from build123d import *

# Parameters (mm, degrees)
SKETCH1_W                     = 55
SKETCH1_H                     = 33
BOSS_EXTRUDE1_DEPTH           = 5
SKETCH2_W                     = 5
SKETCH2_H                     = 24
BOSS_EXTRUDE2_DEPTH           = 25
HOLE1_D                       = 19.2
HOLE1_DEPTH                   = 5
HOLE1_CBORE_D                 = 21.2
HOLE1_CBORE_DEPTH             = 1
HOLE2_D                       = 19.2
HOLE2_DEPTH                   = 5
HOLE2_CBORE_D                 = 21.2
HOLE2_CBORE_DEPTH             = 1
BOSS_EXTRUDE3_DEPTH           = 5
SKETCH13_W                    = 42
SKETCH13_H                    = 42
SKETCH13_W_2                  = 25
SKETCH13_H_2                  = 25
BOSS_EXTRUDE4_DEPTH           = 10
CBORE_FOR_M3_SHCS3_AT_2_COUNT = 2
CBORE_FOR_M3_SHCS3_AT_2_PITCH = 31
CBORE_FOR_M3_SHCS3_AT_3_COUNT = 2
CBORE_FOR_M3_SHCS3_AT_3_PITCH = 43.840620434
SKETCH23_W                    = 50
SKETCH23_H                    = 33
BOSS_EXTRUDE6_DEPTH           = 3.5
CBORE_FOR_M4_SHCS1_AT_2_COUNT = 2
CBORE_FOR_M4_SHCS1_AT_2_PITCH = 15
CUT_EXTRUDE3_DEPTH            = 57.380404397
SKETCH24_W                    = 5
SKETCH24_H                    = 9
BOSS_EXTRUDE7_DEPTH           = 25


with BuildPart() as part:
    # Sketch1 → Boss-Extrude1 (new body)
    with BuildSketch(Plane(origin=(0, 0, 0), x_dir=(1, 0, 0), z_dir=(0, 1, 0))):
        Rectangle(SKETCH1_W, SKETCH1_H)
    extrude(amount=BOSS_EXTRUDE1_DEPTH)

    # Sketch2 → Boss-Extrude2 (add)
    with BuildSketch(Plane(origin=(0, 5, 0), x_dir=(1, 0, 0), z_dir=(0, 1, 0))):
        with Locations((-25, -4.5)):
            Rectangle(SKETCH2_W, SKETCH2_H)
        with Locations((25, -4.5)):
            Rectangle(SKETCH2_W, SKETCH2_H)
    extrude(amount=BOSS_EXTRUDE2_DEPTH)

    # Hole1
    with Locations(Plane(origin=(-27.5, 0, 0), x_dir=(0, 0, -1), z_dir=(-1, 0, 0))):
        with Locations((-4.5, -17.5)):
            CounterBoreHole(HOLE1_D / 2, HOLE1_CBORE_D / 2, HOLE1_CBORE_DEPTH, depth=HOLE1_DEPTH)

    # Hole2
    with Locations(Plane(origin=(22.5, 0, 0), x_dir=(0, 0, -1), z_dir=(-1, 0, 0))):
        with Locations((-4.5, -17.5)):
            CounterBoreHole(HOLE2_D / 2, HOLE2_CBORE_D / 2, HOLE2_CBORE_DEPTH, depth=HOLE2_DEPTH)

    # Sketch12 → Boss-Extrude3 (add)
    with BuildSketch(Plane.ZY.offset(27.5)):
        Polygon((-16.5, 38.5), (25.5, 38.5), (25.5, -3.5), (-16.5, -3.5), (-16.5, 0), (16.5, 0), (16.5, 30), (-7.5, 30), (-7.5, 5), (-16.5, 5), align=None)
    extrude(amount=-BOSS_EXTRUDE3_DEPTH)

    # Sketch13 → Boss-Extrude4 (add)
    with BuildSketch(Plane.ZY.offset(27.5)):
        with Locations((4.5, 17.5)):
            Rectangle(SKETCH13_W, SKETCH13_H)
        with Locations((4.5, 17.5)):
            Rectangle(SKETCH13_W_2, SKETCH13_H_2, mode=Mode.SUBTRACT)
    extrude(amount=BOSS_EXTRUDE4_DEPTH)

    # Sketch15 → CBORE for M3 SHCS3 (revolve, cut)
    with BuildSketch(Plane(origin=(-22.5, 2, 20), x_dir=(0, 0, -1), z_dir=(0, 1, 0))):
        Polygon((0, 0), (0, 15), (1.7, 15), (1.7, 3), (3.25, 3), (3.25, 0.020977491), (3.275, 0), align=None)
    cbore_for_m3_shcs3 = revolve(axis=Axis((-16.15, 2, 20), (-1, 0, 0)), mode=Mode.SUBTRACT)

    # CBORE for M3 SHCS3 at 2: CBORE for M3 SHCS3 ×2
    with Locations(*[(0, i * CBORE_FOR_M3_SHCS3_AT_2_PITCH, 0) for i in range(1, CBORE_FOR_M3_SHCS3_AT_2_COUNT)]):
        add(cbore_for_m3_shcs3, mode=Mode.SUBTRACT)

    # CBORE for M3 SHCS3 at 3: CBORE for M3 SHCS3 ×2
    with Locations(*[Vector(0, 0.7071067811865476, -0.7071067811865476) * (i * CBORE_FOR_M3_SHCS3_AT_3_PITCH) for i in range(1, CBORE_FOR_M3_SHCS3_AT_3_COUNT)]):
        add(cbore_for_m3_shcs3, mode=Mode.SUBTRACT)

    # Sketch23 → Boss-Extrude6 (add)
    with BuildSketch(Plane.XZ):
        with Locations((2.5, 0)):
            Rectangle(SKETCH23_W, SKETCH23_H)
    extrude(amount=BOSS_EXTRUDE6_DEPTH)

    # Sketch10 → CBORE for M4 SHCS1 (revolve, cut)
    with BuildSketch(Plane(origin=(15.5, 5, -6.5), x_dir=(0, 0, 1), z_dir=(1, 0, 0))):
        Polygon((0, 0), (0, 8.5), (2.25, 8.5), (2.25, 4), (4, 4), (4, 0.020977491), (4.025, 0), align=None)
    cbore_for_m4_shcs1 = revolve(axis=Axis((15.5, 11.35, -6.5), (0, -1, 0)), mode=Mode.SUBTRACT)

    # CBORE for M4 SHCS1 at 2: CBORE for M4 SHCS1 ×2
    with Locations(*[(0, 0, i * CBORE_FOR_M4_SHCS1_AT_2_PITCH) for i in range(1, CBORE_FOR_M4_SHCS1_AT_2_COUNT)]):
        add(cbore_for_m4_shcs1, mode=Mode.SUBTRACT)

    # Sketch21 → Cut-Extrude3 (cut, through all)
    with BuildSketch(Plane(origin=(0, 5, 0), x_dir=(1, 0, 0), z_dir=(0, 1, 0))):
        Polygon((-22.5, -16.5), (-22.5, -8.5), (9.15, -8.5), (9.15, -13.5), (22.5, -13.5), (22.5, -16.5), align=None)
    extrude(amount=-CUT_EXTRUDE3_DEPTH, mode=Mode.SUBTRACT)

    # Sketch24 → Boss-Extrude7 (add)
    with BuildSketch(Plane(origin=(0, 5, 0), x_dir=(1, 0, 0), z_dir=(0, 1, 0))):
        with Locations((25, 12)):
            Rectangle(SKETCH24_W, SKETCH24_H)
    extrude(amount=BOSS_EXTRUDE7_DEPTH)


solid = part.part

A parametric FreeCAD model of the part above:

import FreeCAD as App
import Part
import Sketcher

V = App.Vector
Q = App.Units.Quantity

doc = App.newDocument("Part")
params = doc.addObject("Spreadsheet::Sheet", "Params")
for row, (alias, value) in enumerate([
    ("sketch1_width", "55 mm"),
    ("sketch1_height", "33 mm"),
    ("pad1_length", "5 mm"),
    ("sketch2_width", "5 mm"),
    ("sketch2_height", "24 mm"),
    ("pad2_length", "25 mm"),
    ("sketch3_diameter", "19.2 mm"),
    ("hole_diameter", "19.2 mm"),
    ("hole_depth", "5 mm"),
    ("hole_cbore_diameter", "21.2 mm"),
    ("hole_cbore_depth", "1 mm"),
    ("sketch4_diameter", "19.2 mm"),
    ("hole2_diameter", "19.2 mm"),
    ("hole2_depth", "5 mm"),
    ("hole2_cbore_diameter", "21.2 mm"),
    ("hole2_cbore_depth", "1 mm"),
    ("sketch5_width", "25 mm"),
    ("sketch5_width2", "30 mm"),
    ("sketch5_width3", "42 mm"),
    ("sketch5_height", "9 mm"),
    ("sketch5_height2", "24 mm"),
    ("pad3_length", "5 mm"),
    ("sketch6_width", "42 mm"),
    ("sketch6_width2", "25 mm"),
    ("pad4_length", "10 mm"),
    ("sketch7_width", "15 mm"),
    ("sketch7_width2", "12 mm"),
    ("sketch7_height", "1.7 mm"),
    ("sketch7_height2", "1.55 mm"),
    ("groove_angle", "360 deg"),
    ("linearpattern_pitch", "31 mm"),
    ("linearpattern2_pitch", "43.84062 mm"),
    ("sketch8_width", "50 mm"),
    ("sketch8_height", "33 mm"),
    ("pad5_length", "3.5 mm"),
    ("sketch9_width", "8.5 mm"),
    ("sketch9_width2", "4.5 mm"),
    ("sketch9_height", "1.75 mm"),
    ("groove2_angle", "360 deg"),
    ("linearpattern3_pitch", "15 mm"),
    ("sketch10_width", "45 mm"),
    ("sketch10_height", "8 mm"),
    ("sketch10_height2", "3 mm"),
    ("sketch10_width2", "13.35 mm"),
    ("sketch11_width", "5 mm"),
    ("sketch11_height", "9 mm"),
    ("pad6_length", "25 mm"),
], start=1):
    params.set(f"A{row}", alias)
    params.set(f"B{row}", "=" + value)
    params.setAlias(f"B{row}", alias)

body = doc.addObject("PartDesign::Body", "Body")

# Sketch on XZ plane
sketch1 = body.newObject("Sketcher::SketchObject", "Sketch")
sketch1.AttachmentSupport = (doc.getObject("XZ_Plane"), [""])
sketch1.MapMode = "FlatFace"
sketch1.addGeometry(Part.LineSegment(V(-27.5, -16.5, 0), V(-27.5, 16.5, 0)), False)
sketch1.addGeometry(Part.LineSegment(V(-27.5, 16.5, 0), V(27.5, 16.5, 0)), False)
sketch1.addGeometry(Part.LineSegment(V(27.5, 16.5, 0), V(27.5, -16.5, 0)), False)
sketch1.addGeometry(Part.LineSegment(V(27.5, -16.5, 0), V(-27.5, -16.5, 0)), False)
sketch1.addConstraint(Sketcher.Constraint("Coincident", 0, 2, 1, 1))
sketch1.addConstraint(Sketcher.Constraint("Coincident", 1, 2, 2, 1))
sketch1.addConstraint(Sketcher.Constraint("Coincident", 2, 2, 3, 1))
sketch1.addConstraint(Sketcher.Constraint("Coincident", 3, 2, 0, 1))
sketch1.addConstraint(Sketcher.Constraint("Vertical", 0))
sketch1.addConstraint(Sketcher.Constraint("Horizontal", 1))
sketch1.addConstraint(Sketcher.Constraint("Vertical", 2))
sketch1.addConstraint(Sketcher.Constraint("Horizontal", 3))
sketch1.addConstraint(Sketcher.Constraint("Symmetric", 0, 2, 2, 2, -1, 1))
sketch1.addConstraint(Sketcher.Constraint("DistanceX", 1, 1, 1, 2, Q("55 mm")))
sketch1.addConstraint(Sketcher.Constraint("DistanceY", 0, 1, 0, 2, Q("33 mm")))
sketch1.setExpression("Constraints[9]", "Params.sketch1_width")
sketch1.setExpression("Constraints[10]", "Params.sketch1_height")
pad1 = body.newObject("PartDesign::Pad", "Pad")
pad1.Profile = sketch1
pad1.setExpression("Length", "Params.pad1_length")
pad1.Reversed = True

# Sketch on XZ plane
sketch2 = body.newObject("Sketcher::SketchObject", "Sketch001")
sketch2.AttachmentSupport = (doc.getObject("XZ_Plane"), [""])
sketch2.MapMode = "FlatFace"
sketch2.AttachmentOffset = App.Placement(V(0, 0, -5), App.Rotation())
sketch2.addGeometry(Part.LineSegment(V(-27.5, -7.5, 0), V(-27.5, 16.5, 0)), False)
sketch2.addGeometry(Part.LineSegment(V(-27.5, 16.5, 0), V(-22.5, 16.5, 0)), False)
sketch2.addGeometry(Part.LineSegment(V(-22.5, 16.5, 0), V(-22.5, -7.5, 0)), False)
sketch2.addGeometry(Part.LineSegment(V(-22.5, -7.5, 0), V(-27.5, -7.5, 0)), False)
sketch2.addGeometry(Part.LineSegment(V(22.5, -7.5, 0), V(22.5, 16.5, 0)), False)
sketch2.addGeometry(Part.LineSegment(V(22.5, 16.5, 0), V(27.5, 16.5, 0)), False)
sketch2.addGeometry(Part.LineSegment(V(27.5, 16.5, 0), V(27.5, -7.5, 0)), False)
sketch2.addGeometry(Part.LineSegment(V(27.5, -7.5, 0), V(22.5, -7.5, 0)), False)
sketch2.addConstraint(Sketcher.Constraint("Coincident", 0, 2, 1, 1))
sketch2.addConstraint(Sketcher.Constraint("Coincident", 1, 2, 2, 1))
sketch2.addConstraint(Sketcher.Constraint("Coincident", 2, 2, 3, 1))
sketch2.addConstraint(Sketcher.Constraint("Coincident", 3, 2, 0, 1))
sketch2.addConstraint(Sketcher.Constraint("Coincident", 4, 2, 5, 1))
sketch2.addConstraint(Sketcher.Constraint("Coincident", 5, 2, 6, 1))
sketch2.addConstraint(Sketcher.Constraint("Coincident", 6, 2, 7, 1))
sketch2.addConstraint(Sketcher.Constraint("Coincident", 7, 2, 4, 1))
sketch2.addConstraint(Sketcher.Constraint("Vertical", 0))
sketch2.addConstraint(Sketcher.Constraint("Horizontal", 1))
sketch2.addConstraint(Sketcher.Constraint("Vertical", 2))
sketch2.addConstraint(Sketcher.Constraint("Horizontal", 3))
sketch2.addConstraint(Sketcher.Constraint("Vertical", 4))
sketch2.addConstraint(Sketcher.Constraint("Horizontal", 5))
sketch2.addConstraint(Sketcher.Constraint("Vertical", 6))
sketch2.addConstraint(Sketcher.Constraint("Horizontal", 7))
sketch2.addConstraint(Sketcher.Constraint("Symmetric", 1, 2, 4, 2, -2))
sketch2.addConstraint(Sketcher.Constraint("Symmetric", 3, 2, 6, 2, -2))
sketch2.addConstraint(Sketcher.Constraint("DistanceX", 1, 1, 1, 2, Q("5 mm")))
sketch2.addConstraint(Sketcher.Constraint("DistanceY", 0, 1, 0, 2, Q("24 mm")))
sketch2.addConstraint(Sketcher.Constraint("DistanceX", 1, 2, 4, 2, Q("45 mm")))
sketch2.addConstraint(Sketcher.Constraint("DistanceY", -1, 1, 0, 2, Q("16.5 mm")))
sketch2.setExpression("Constraints[18]", "Params.sketch2_width")
sketch2.setExpression("Constraints[19]", "Params.sketch2_height")
pad2 = body.newObject("PartDesign::Pad", "Pad001")
pad2.Profile = sketch2
pad2.setExpression("Length", "Params.pad2_length")
pad2.Reversed = True

# Sketch on YZ plane
sketch3 = body.newObject("Sketcher::SketchObject", "Sketch002")
sketch3.AttachmentSupport = (doc.getObject("YZ_Plane"), [""])
sketch3.MapMode = "FlatFace"
sketch3.AttachmentOffset = App.Placement(V(0, 0, -27.5), App.Rotation())
sketch3.addGeometry(Part.Circle(V(17.5, 4.5, 0), V(0, 0, 1), 9.6), False)
sketch3.addConstraint(Sketcher.Constraint("Diameter", 0, Q("19.2 mm")))
sketch3.addConstraint(Sketcher.Constraint("DistanceX", -1, 1, 0, 3, Q("17.5 mm")))
sketch3.addConstraint(Sketcher.Constraint("DistanceY", -1, 1, 0, 3, Q("4.5 mm")))
sketch3.setExpression("Constraints[0]", "Params.sketch3_diameter")
doc.recompute()
hole = body.newObject("PartDesign::Hole", "Hole")
hole.Profile = sketch3
hole.ThreadType = "None"
hole.setExpression("Diameter", "Params.hole_diameter")
hole.DepthType = "Dimension"
hole.setExpression("Depth", "Params.hole_depth")
hole.DrillPoint = "Flat"
hole.HoleCutType = "Counterbore"
hole.setExpression("HoleCutDiameter", "Params.hole_cbore_diameter")
hole.setExpression("HoleCutDepth", "Params.hole_cbore_depth")
hole.Reversed = True

# Sketch on YZ plane
sketch4 = body.newObject("Sketcher::SketchObject", "Sketch003")
sketch4.AttachmentSupport = (doc.getObject("YZ_Plane"), [""])
sketch4.MapMode = "FlatFace"
sketch4.AttachmentOffset = App.Placement(V(0, 0, 22.5), App.Rotation())
sketch4.addGeometry(Part.Circle(V(17.5, 4.5, 0), V(0, 0, 1), 9.6), False)
sketch4.addConstraint(Sketcher.Constraint("Diameter", 0, Q("19.2 mm")))
sketch4.addConstraint(Sketcher.Constraint("DistanceX", -1, 1, 0, 3, Q("17.5 mm")))
sketch4.addConstraint(Sketcher.Constraint("DistanceY", -1, 1, 0, 3, Q("4.5 mm")))
sketch4.setExpression("Constraints[0]", "Params.sketch4_diameter")
doc.recompute()
hole2 = body.newObject("PartDesign::Hole", "Hole001")
hole2.Profile = sketch4
hole2.ThreadType = "None"
hole2.setExpression("Diameter", "Params.hole2_diameter")
hole2.DepthType = "Dimension"
hole2.setExpression("Depth", "Params.hole2_depth")
hole2.DrillPoint = "Flat"
hole2.HoleCutType = "Counterbore"
hole2.setExpression("HoleCutDiameter", "Params.hole2_cbore_diameter")
hole2.setExpression("HoleCutDepth", "Params.hole2_cbore_depth")
hole2.Reversed = True

# Sketch on YZ plane
sketch5 = body.newObject("Sketcher::SketchObject", "Sketch004")
sketch5.AttachmentSupport = (doc.getObject("YZ_Plane"), [""])
sketch5.MapMode = "FlatFace"
sketch5.AttachmentOffset = App.Placement(V(0, 0, -27.5), App.Rotation())
sketch5.addGeometry(Part.LineSegment(V(38.5, 25.5, 0), V(38.5, -16.5, 0)), False)
sketch5.addGeometry(Part.LineSegment(V(38.5, -16.5, 0), V(5, -16.5, 0)), False)
sketch5.addGeometry(Part.LineSegment(V(5, -16.5, 0), V(5, -7.5, 0)), False)
sketch5.addGeometry(Part.LineSegment(V(5, -7.5, 0), V(30, -7.5, 0)), False)
sketch5.addGeometry(Part.LineSegment(V(30, -7.5, 0), V(30, 16.5, 0)), False)
sketch5.addGeometry(Part.LineSegment(V(30, 16.5, 0), V(0, 16.5, 0)), False)
sketch5.addGeometry(Part.LineSegment(V(0, 16.5, 0), V(0, -16.5, 0)), False)
sketch5.addGeometry(Part.LineSegment(V(0, -16.5, 0), V(-3.5, -16.5, 0)), False)
sketch5.addGeometry(Part.LineSegment(V(-3.5, -16.5, 0), V(-3.5, 25.5, 0)), False)
sketch5.addGeometry(Part.LineSegment(V(-3.5, 25.5, 0), V(38.5, 25.5, 0)), False)
sketch5.addConstraint(Sketcher.Constraint("Coincident", 0, 2, 1, 1))
sketch5.addConstraint(Sketcher.Constraint("Coincident", 1, 2, 2, 1))
sketch5.addConstraint(Sketcher.Constraint("Coincident", 2, 2, 3, 1))
sketch5.addConstraint(Sketcher.Constraint("Coincident", 3, 2, 4, 1))
sketch5.addConstraint(Sketcher.Constraint("Coincident", 4, 2, 5, 1))
sketch5.addConstraint(Sketcher.Constraint("Coincident", 5, 2, 6, 1))
sketch5.addConstraint(Sketcher.Constraint("Coincident", 6, 2, 7, 1))
sketch5.addConstraint(Sketcher.Constraint("Coincident", 7, 2, 8, 1))
sketch5.addConstraint(Sketcher.Constraint("Coincident", 8, 2, 9, 1))
sketch5.addConstraint(Sketcher.Constraint("Coincident", 9, 2, 0, 1))
sketch5.addConstraint(Sketcher.Constraint("Vertical", 0))
sketch5.addConstraint(Sketcher.Constraint("Horizontal", 1))
sketch5.addConstraint(Sketcher.Constraint("Vertical", 2))
sketch5.addConstraint(Sketcher.Constraint("Horizontal", 3))
sketch5.addConstraint(Sketcher.Constraint("Vertical", 4))
sketch5.addConstraint(Sketcher.Constraint("Horizontal", 5))
sketch5.addConstraint(Sketcher.Constraint("Vertical", 6))
sketch5.addConstraint(Sketcher.Constraint("Horizontal", 7))
sketch5.addConstraint(Sketcher.Constraint("Vertical", 8))
sketch5.addConstraint(Sketcher.Constraint("Horizontal", 9))
sketch5.addConstraint(Sketcher.Constraint("Symmetric", 5, 2, 6, 2, -1, 1))
sketch5.addConstraint(Sketcher.Constraint("Horizontal", 1, 2, 6, 2))
sketch5.addConstraint(Sketcher.Constraint("Equal", 9, 0))
sketch5.addConstraint(Sketcher.Constraint("DistanceX", 3, 1, 3, 2, Q("25 mm")))
sketch5.addConstraint(Sketcher.Constraint("DistanceX", 5, 2, 5, 1, Q("30 mm")))
sketch5.addConstraint(Sketcher.Constraint("DistanceX", 9, 1, 9, 2, Q("42 mm")))
sketch5.addConstraint(Sketcher.Constraint("DistanceY", 2, 1, 2, 2, Q("9 mm")))
sketch5.addConstraint(Sketcher.Constraint("DistanceY", 4, 1, 4, 2, Q("24 mm")))
sketch5.addConstraint(Sketcher.Constraint("DistanceX", 1, 2, 1, 1, Q("33.5 mm")))
sketch5.setExpression("Constraints[23]", "Params.sketch5_width")
sketch5.setExpression("Constraints[24]", "Params.sketch5_width2")
sketch5.setExpression("Constraints[25]", "Params.sketch5_width3")
sketch5.setExpression("Constraints[26]", "Params.sketch5_height")
sketch5.setExpression("Constraints[27]", "Params.sketch5_height2")
pad3 = body.newObject("PartDesign::Pad", "Pad002")
pad3.Profile = sketch5
pad3.setExpression("Length", "Params.pad3_length")

# Sketch on YZ plane
sketch6 = body.newObject("Sketcher::SketchObject", "Sketch005")
sketch6.AttachmentSupport = (doc.getObject("YZ_Plane"), [""])
sketch6.MapMode = "FlatFace"
sketch6.AttachmentOffset = App.Placement(V(0, 0, -27.5), App.Rotation())
sketch6.addGeometry(Part.LineSegment(V(38.5, -16.5, 0), V(-3.5, -16.5, 0)), False)
sketch6.addGeometry(Part.LineSegment(V(-3.5, -16.5, 0), V(-3.5, 25.5, 0)), False)
sketch6.addGeometry(Part.LineSegment(V(-3.5, 25.5, 0), V(38.5, 25.5, 0)), False)
sketch6.addGeometry(Part.LineSegment(V(38.5, 25.5, 0), V(38.5, -16.5, 0)), False)
sketch6.addGeometry(Part.LineSegment(V(5, 17, 0), V(5, -8, 0)), False)
sketch6.addGeometry(Part.LineSegment(V(5, -8, 0), V(30, -8, 0)), False)
sketch6.addGeometry(Part.LineSegment(V(30, -8, 0), V(30, 17, 0)), False)
sketch6.addGeometry(Part.LineSegment(V(30, 17, 0), V(5, 17, 0)), False)
sketch6.addConstraint(Sketcher.Constraint("Coincident", 0, 2, 1, 1))
sketch6.addConstraint(Sketcher.Constraint("Coincident", 1, 2, 2, 1))
sketch6.addConstraint(Sketcher.Constraint("Coincident", 2, 2, 3, 1))
sketch6.addConstraint(Sketcher.Constraint("Coincident", 3, 2, 0, 1))
sketch6.addConstraint(Sketcher.Constraint("Coincident", 4, 2, 5, 1))
sketch6.addConstraint(Sketcher.Constraint("Coincident", 5, 2, 6, 1))
sketch6.addConstraint(Sketcher.Constraint("Coincident", 6, 2, 7, 1))
sketch6.addConstraint(Sketcher.Constraint("Coincident", 7, 2, 4, 1))
sketch6.addConstraint(Sketcher.Constraint("Horizontal", 0))
sketch6.addConstraint(Sketcher.Constraint("Vertical", 1))
sketch6.addConstraint(Sketcher.Constraint("Horizontal", 2))
sketch6.addConstraint(Sketcher.Constraint("Vertical", 3))
sketch6.addConstraint(Sketcher.Constraint("Vertical", 4))
sketch6.addConstraint(Sketcher.Constraint("Horizontal", 5))
sketch6.addConstraint(Sketcher.Constraint("Vertical", 6))
sketch6.addConstraint(Sketcher.Constraint("Horizontal", 7))
sketch6.addConstraint(Sketcher.Constraint("Equal", 2, 1))
sketch6.addConstraint(Sketcher.Constraint("Equal", 7, 4))
sketch6.addConstraint(Sketcher.Constraint("DistanceX", 0, 2, 0, 1, Q("42 mm")))
sketch6.addConstraint(Sketcher.Constraint("DistanceX", 5, 1, 5, 2, Q("25 mm")))
sketch6.addConstraint(Sketcher.Constraint("DistanceX", -1, 1, 4, 2, Q("5 mm")))
sketch6.addConstraint(Sketcher.Constraint("DistanceY", 4, 2, -1, 1, Q("8 mm")))
sketch6.addConstraint(Sketcher.Constraint("DistanceX", 0, 2, -1, 1, Q("3.5 mm")))
sketch6.addConstraint(Sketcher.Constraint("DistanceY", 0, 2, -1, 1, Q("16.5 mm")))
sketch6.setExpression("Constraints[18]", "Params.sketch6_width")
sketch6.setExpression("Constraints[19]", "Params.sketch6_width2")
pad4 = body.newObject("PartDesign::Pad", "Pad003")
pad4.Profile = sketch6
pad4.setExpression("Length", "Params.pad4_length")
pad4.Reversed = True

# Sketch on XZ plane
sketch7 = body.newObject("Sketcher::SketchObject", "Sketch006")
sketch7.AttachmentSupport = (doc.getObject("XZ_Plane"), [""])
sketch7.MapMode = "FlatFace"
sketch7.AttachmentOffset = App.Placement(V(0, 0, -2), App.Rotation())
sketch7.addGeometry(Part.LineSegment(V(-37.5, 20, 0), V(-22.5, 20, 0)), False)
sketch7.addGeometry(Part.LineSegment(V(-22.5, 20, 0), V(-22.5, 16.725, 0)), False)
sketch7.addGeometry(Part.LineSegment(V(-22.5, 16.725, 0), V(-22.520977, 16.75, 0)), False)
sketch7.addGeometry(Part.LineSegment(V(-22.520977, 16.75, 0), V(-25.5, 16.75, 0)), False)
sketch7.addGeometry(Part.LineSegment(V(-25.5, 16.75, 0), V(-25.5, 18.3, 0)), False)
sketch7.addGeometry(Part.LineSegment(V(-25.5, 18.3, 0), V(-37.5, 18.3, 0)), False)
sketch7.addGeometry(Part.LineSegment(V(-37.5, 18.3, 0), V(-37.5, 20, 0)), False)
sketch7.addGeometry(Part.LineSegment(V(-22.5, 20, 0), V(-37.5, 20, 0)), True)  # axis
sketch7.addConstraint(Sketcher.Constraint("Coincident", 0, 2, 1, 1))
sketch7.addConstraint(Sketcher.Constraint("Coincident", 1, 2, 2, 1))
sketch7.addConstraint(Sketcher.Constraint("Coincident", 2, 2, 3, 1))
sketch7.addConstraint(Sketcher.Constraint("Coincident", 3, 2, 4, 1))
sketch7.addConstraint(Sketcher.Constraint("Coincident", 4, 2, 5, 1))
sketch7.addConstraint(Sketcher.Constraint("Coincident", 5, 2, 6, 1))
sketch7.addConstraint(Sketcher.Constraint("Coincident", 6, 2, 0, 1))
sketch7.addConstraint(Sketcher.Constraint("Horizontal", 0))
sketch7.addConstraint(Sketcher.Constraint("Vertical", 1))
sketch7.addConstraint(Sketcher.Constraint("Horizontal", 3))
sketch7.addConstraint(Sketcher.Constraint("Vertical", 4))
sketch7.addConstraint(Sketcher.Constraint("Horizontal", 5))
sketch7.addConstraint(Sketcher.Constraint("Vertical", 6))
sketch7.addConstraint(Sketcher.Constraint("Horizontal", 7))
sketch7.addConstraint(Sketcher.Constraint("Coincident", 7, 1, 0, 2))
sketch7.addConstraint(Sketcher.Constraint("Vertical", 5, 2, 7, 2))
sketch7.addConstraint(Sketcher.Constraint("DistanceX", 0, 1, 0, 2, Q("15 mm")))
sketch7.addConstraint(Sketcher.Constraint("DistanceX", 5, 2, 5, 1, Q("12 mm")))
sketch7.addConstraint(Sketcher.Constraint("Angle", 2, Q("130 deg")))
sketch7.addConstraint(Sketcher.Constraint("DistanceY", 6, 1, 6, 2, Q("1.7 mm")))
sketch7.addConstraint(Sketcher.Constraint("DistanceY", -1, 1, 0, 2, Q("20 mm")))
sketch7.addConstraint(Sketcher.Constraint("DistanceY", 4, 1, 4, 2, Q("1.55 mm")))
sketch7.addConstraint(Sketcher.Constraint("DistanceX", 0, 2, -1, 1, Q("22.5 mm")))
sketch7.addConstraint(Sketcher.Constraint("DistanceY", 1, 2, 1, 1, Q("3.275 mm")))
sketch7.setExpression("Constraints[16]", "Params.sketch7_width")
sketch7.setExpression("Constraints[17]", "Params.sketch7_width2")
sketch7.setExpression("Constraints[19]", "Params.sketch7_height")
sketch7.setExpression("Constraints[21]", "Params.sketch7_height2")
groove = body.newObject("PartDesign::Groove", "Groove")
groove.Profile = sketch7
groove.ReferenceAxis = (sketch7, ["Axis0"])
groove.setExpression("Angle", "Params.groove_angle")
doc.recompute()

linearpattern = body.newObject("PartDesign::LinearPattern", "LinearPattern")
linearpattern.Originals = [groove]
linearpattern.Direction = (doc.getObject("Y_Axis"), [""])
linearpattern.Mode = "offset"
linearpattern.setExpression("Offset", "Params.linearpattern_pitch")
linearpattern.Occurrences = 2
body.Tip = linearpattern
doc.recompute()

datumline = body.newObject("PartDesign::Line", "DatumLine")
datumline.Placement = App.Placement(V(0, 0, 0), App.Rotation(V(0, 0, 1), V(0, 0.707106781, -0.707106781)))
linearpattern2 = body.newObject("PartDesign::LinearPattern", "LinearPattern001")
linearpattern2.Originals = [groove]
linearpattern2.Direction = (datumline, [""])
linearpattern2.Mode = "offset"
linearpattern2.setExpression("Offset", "Params.linearpattern2_pitch")
linearpattern2.Occurrences = 2
body.Tip = linearpattern2

# Sketch on XZ plane
sketch8 = body.newObject("Sketcher::SketchObject", "Sketch007")
sketch8.AttachmentSupport = (doc.getObject("XZ_Plane"), [""])
sketch8.MapMode = "FlatFace"
sketch8.addGeometry(Part.LineSegment(V(-22.5, 16.5, 0), V(-22.5, -16.5, 0)), False)
sketch8.addGeometry(Part.LineSegment(V(-22.5, -16.5, 0), V(27.5, -16.5, 0)), False)
sketch8.addGeometry(Part.LineSegment(V(27.5, -16.5, 0), V(27.5, 16.5, 0)), False)
sketch8.addGeometry(Part.LineSegment(V(27.5, 16.5, 0), V(-22.5, 16.5, 0)), False)
sketch8.addConstraint(Sketcher.Constraint("Coincident", 0, 2, 1, 1))
sketch8.addConstraint(Sketcher.Constraint("Coincident", 1, 2, 2, 1))
sketch8.addConstraint(Sketcher.Constraint("Coincident", 2, 2, 3, 1))
sketch8.addConstraint(Sketcher.Constraint("Coincident", 3, 2, 0, 1))
sketch8.addConstraint(Sketcher.Constraint("Vertical", 0))
sketch8.addConstraint(Sketcher.Constraint("Horizontal", 1))
sketch8.addConstraint(Sketcher.Constraint("Vertical", 2))
sketch8.addConstraint(Sketcher.Constraint("Horizontal", 3))
sketch8.addConstraint(Sketcher.Constraint("DistanceX", 1, 1, 1, 2, Q("50 mm")))
sketch8.addConstraint(Sketcher.Constraint("DistanceY", 0, 2, 0, 1, Q("33 mm")))
sketch8.addConstraint(Sketcher.Constraint("DistanceX", 0, 2, -1, 1, Q("22.5 mm")))
sketch8.addConstraint(Sketcher.Constraint("DistanceY", 0, 2, -1, 1, Q("16.5 mm")))
sketch8.setExpression("Constraints[8]", "Params.sketch8_width")
sketch8.setExpression("Constraints[9]", "Params.sketch8_height")
pad5 = body.newObject("PartDesign::Pad", "Pad004")
pad5.Profile = sketch8
pad5.setExpression("Length", "Params.pad5_length")

# Sketch on YZ plane
sketch9 = body.newObject("Sketcher::SketchObject", "Sketch008")
sketch9.AttachmentSupport = (doc.getObject("YZ_Plane"), [""])
sketch9.MapMode = "FlatFace"
sketch9.AttachmentOffset = App.Placement(V(0, 0, 15.5), App.Rotation())
sketch9.addGeometry(Part.LineSegment(V(-3.5, -6.5, 0), V(5, -6.5, 0)), False)
sketch9.addGeometry(Part.LineSegment(V(5, -6.5, 0), V(5, -2.475, 0)), False)
sketch9.addGeometry(Part.LineSegment(V(5, -2.475, 0), V(4.979023, -2.5, 0)), False)
sketch9.addGeometry(Part.LineSegment(V(4.979023, -2.5, 0), V(1, -2.5, 0)), False)
sketch9.addGeometry(Part.LineSegment(V(1, -2.5, 0), V(1, -4.25, 0)), False)
sketch9.addGeometry(Part.LineSegment(V(1, -4.25, 0), V(-3.5, -4.25, 0)), False)
sketch9.addGeometry(Part.LineSegment(V(-3.5, -4.25, 0), V(-3.5, -6.5, 0)), False)
sketch9.addGeometry(Part.LineSegment(V(5, -6.5, 0), V(-3.5, -6.5, 0)), True)  # axis
sketch9.addConstraint(Sketcher.Constraint("Coincident", 0, 2, 1, 1))
sketch9.addConstraint(Sketcher.Constraint("Coincident", 1, 2, 2, 1))
sketch9.addConstraint(Sketcher.Constraint("Coincident", 2, 2, 3, 1))
sketch9.addConstraint(Sketcher.Constraint("Coincident", 3, 2, 4, 1))
sketch9.addConstraint(Sketcher.Constraint("Coincident", 4, 2, 5, 1))
sketch9.addConstraint(Sketcher.Constraint("Coincident", 5, 2, 6, 1))
sketch9.addConstraint(Sketcher.Constraint("Coincident", 6, 2, 0, 1))
sketch9.addConstraint(Sketcher.Constraint("Horizontal", 0))
sketch9.addConstraint(Sketcher.Constraint("Vertical", 1))
sketch9.addConstraint(Sketcher.Constraint("Horizontal", 3))
sketch9.addConstraint(Sketcher.Constraint("Vertical", 4))
sketch9.addConstraint(Sketcher.Constraint("Horizontal", 5))
sketch9.addConstraint(Sketcher.Constraint("Vertical", 6))
sketch9.addConstraint(Sketcher.Constraint("Horizontal", 7))
sketch9.addConstraint(Sketcher.Constraint("Coincident", 7, 1, 0, 2))
sketch9.addConstraint(Sketcher.Constraint("Vertical", 5, 2, 7, 2))
sketch9.addConstraint(Sketcher.Constraint("Angle", 2, Q("-130 deg")))
sketch9.addConstraint(Sketcher.Constraint("DistanceX", 0, 1, 0, 2, Q("8.5 mm")))
sketch9.addConstraint(Sketcher.Constraint("DistanceX", 5, 2, 5, 1, Q("4.5 mm")))
sketch9.addConstraint(Sketcher.Constraint("DistanceX", -1, 1, 0, 2, Q("5 mm")))
sketch9.addConstraint(Sketcher.Constraint("DistanceY", 0, 2, 2, 2, Q("4 mm")))
sketch9.addConstraint(Sketcher.Constraint("DistanceY", 4, 2, 4, 1, Q("1.75 mm")))
sketch9.addConstraint(Sketcher.Constraint("DistanceY", 0, 2, -1, 1, Q("6.5 mm")))
sketch9.addConstraint(Sketcher.Constraint("DistanceY", 1, 1, 1, 2, Q("4.025 mm")))
sketch9.setExpression("Constraints[17]", "Params.sketch9_width")
sketch9.setExpression("Constraints[18]", "Params.sketch9_width2")
sketch9.setExpression("Constraints[21]", "Params.sketch9_height")
groove2 = body.newObject("PartDesign::Groove", "Groove001")
groove2.Profile = sketch9
groove2.ReferenceAxis = (sketch9, ["Axis0"])
groove2.setExpression("Angle", "Params.groove2_angle")
doc.recompute()

linearpattern3 = body.newObject("PartDesign::LinearPattern", "LinearPattern002")
linearpattern3.Originals = [groove2]
linearpattern3.Direction = (doc.getObject("Z_Axis"), [""])
linearpattern3.Mode = "offset"
linearpattern3.setExpression("Offset", "Params.linearpattern3_pitch")
linearpattern3.Occurrences = 2
body.Tip = linearpattern3

# Sketch on XZ plane
sketch10 = body.newObject("Sketcher::SketchObject", "Sketch009")
sketch10.AttachmentSupport = (doc.getObject("XZ_Plane"), [""])
sketch10.MapMode = "FlatFace"
sketch10.AttachmentOffset = App.Placement(V(0, 0, -5), App.Rotation())
sketch10.addGeometry(Part.LineSegment(V(-22.5, 8.5, 0), V(-22.5, 16.5, 0)), False)
sketch10.addGeometry(Part.LineSegment(V(-22.5, 16.5, 0), V(22.5, 16.5, 0)), False)
sketch10.addGeometry(Part.LineSegment(V(22.5, 16.5, 0), V(22.5, 13.5, 0)), False)
sketch10.addGeometry(Part.LineSegment(V(22.5, 13.5, 0), V(9.15, 13.5, 0)), False)
sketch10.addGeometry(Part.LineSegment(V(9.15, 13.5, 0), V(9.15, 8.5, 0)), False)
sketch10.addGeometry(Part.LineSegment(V(9.15, 8.5, 0), V(-22.5, 8.5, 0)), False)
sketch10.addConstraint(Sketcher.Constraint("Coincident", 0, 2, 1, 1))
sketch10.addConstraint(Sketcher.Constraint("Coincident", 1, 2, 2, 1))
sketch10.addConstraint(Sketcher.Constraint("Coincident", 2, 2, 3, 1))
sketch10.addConstraint(Sketcher.Constraint("Coincident", 3, 2, 4, 1))
sketch10.addConstraint(Sketcher.Constraint("Coincident", 4, 2, 5, 1))
sketch10.addConstraint(Sketcher.Constraint("Coincident", 5, 2, 0, 1))
sketch10.addConstraint(Sketcher.Constraint("Vertical", 0))
sketch10.addConstraint(Sketcher.Constraint("Horizontal", 1))
sketch10.addConstraint(Sketcher.Constraint("Vertical", 2))
sketch10.addConstraint(Sketcher.Constraint("Horizontal", 3))
sketch10.addConstraint(Sketcher.Constraint("Vertical", 4))
sketch10.addConstraint(Sketcher.Constraint("Horizontal", 5))
sketch10.addConstraint(Sketcher.Constraint("DistanceX", 1, 1, 1, 2, Q("45 mm")))
sketch10.addConstraint(Sketcher.Constraint("DistanceY", 0, 1, 0, 2, Q("8 mm")))
sketch10.addConstraint(Sketcher.Constraint("DistanceY", 2, 2, 2, 1, Q("3 mm")))
sketch10.addConstraint(Sketcher.Constraint("DistanceX", 3, 2, 3, 1, Q("13.35 mm")))
sketch10.addConstraint(Sketcher.Constraint("DistanceX", 0, 2, -1, 1, Q("22.5 mm")))
sketch10.addConstraint(Sketcher.Constraint("DistanceY", -1, 1, 0, 2, Q("16.5 mm")))
sketch10.setExpression("Constraints[12]", "Params.sketch10_width")
sketch10.setExpression("Constraints[13]", "Params.sketch10_height")
sketch10.setExpression("Constraints[14]", "Params.sketch10_height2")
sketch10.setExpression("Constraints[15]", "Params.sketch10_width2")
pocket1 = body.newObject("PartDesign::Pocket", "Pocket")
pocket1.Profile = sketch10
pocket1.Type = "ThroughAll"
pocket1.Reversed = True

# Sketch on XZ plane
sketch11 = body.newObject("Sketcher::SketchObject", "Sketch010")
sketch11.AttachmentSupport = (doc.getObject("XZ_Plane"), [""])
sketch11.MapMode = "FlatFace"
sketch11.AttachmentOffset = App.Placement(V(0, 0, -5), App.Rotation())
sketch11.addGeometry(Part.LineSegment(V(22.5, -16.5, 0), V(22.5, -7.5, 0)), False)
sketch11.addGeometry(Part.LineSegment(V(22.5, -7.5, 0), V(27.5, -7.5, 0)), False)
sketch11.addGeometry(Part.LineSegment(V(27.5, -7.5, 0), V(27.5, -16.5, 0)), False)
sketch11.addGeometry(Part.LineSegment(V(27.5, -16.5, 0), V(22.5, -16.5, 0)), False)
sketch11.addConstraint(Sketcher.Constraint("Coincident", 0, 2, 1, 1))
sketch11.addConstraint(Sketcher.Constraint("Coincident", 1, 2, 2, 1))
sketch11.addConstraint(Sketcher.Constraint("Coincident", 2, 2, 3, 1))
sketch11.addConstraint(Sketcher.Constraint("Coincident", 3, 2, 0, 1))
sketch11.addConstraint(Sketcher.Constraint("Vertical", 0))
sketch11.addConstraint(Sketcher.Constraint("Horizontal", 1))
sketch11.addConstraint(Sketcher.Constraint("Vertical", 2))
sketch11.addConstraint(Sketcher.Constraint("Horizontal", 3))
sketch11.addConstraint(Sketcher.Constraint("DistanceX", 1, 1, 1, 2, Q("5 mm")))
sketch11.addConstraint(Sketcher.Constraint("DistanceY", 0, 1, 0, 2, Q("9 mm")))
sketch11.addConstraint(Sketcher.Constraint("DistanceX", -1, 1, 0, 2, Q("22.5 mm")))
sketch11.addConstraint(Sketcher.Constraint("DistanceY", 0, 2, -1, 1, Q("7.5 mm")))
sketch11.setExpression("Constraints[8]", "Params.sketch11_width")
sketch11.setExpression("Constraints[9]", "Params.sketch11_height")
pad6 = body.newObject("PartDesign::Pad", "Pad005")
pad6.Profile = sketch11
pad6.setExpression("Length", "Params.pad6_length")
pad6.Reversed = True

doc.recompute()
